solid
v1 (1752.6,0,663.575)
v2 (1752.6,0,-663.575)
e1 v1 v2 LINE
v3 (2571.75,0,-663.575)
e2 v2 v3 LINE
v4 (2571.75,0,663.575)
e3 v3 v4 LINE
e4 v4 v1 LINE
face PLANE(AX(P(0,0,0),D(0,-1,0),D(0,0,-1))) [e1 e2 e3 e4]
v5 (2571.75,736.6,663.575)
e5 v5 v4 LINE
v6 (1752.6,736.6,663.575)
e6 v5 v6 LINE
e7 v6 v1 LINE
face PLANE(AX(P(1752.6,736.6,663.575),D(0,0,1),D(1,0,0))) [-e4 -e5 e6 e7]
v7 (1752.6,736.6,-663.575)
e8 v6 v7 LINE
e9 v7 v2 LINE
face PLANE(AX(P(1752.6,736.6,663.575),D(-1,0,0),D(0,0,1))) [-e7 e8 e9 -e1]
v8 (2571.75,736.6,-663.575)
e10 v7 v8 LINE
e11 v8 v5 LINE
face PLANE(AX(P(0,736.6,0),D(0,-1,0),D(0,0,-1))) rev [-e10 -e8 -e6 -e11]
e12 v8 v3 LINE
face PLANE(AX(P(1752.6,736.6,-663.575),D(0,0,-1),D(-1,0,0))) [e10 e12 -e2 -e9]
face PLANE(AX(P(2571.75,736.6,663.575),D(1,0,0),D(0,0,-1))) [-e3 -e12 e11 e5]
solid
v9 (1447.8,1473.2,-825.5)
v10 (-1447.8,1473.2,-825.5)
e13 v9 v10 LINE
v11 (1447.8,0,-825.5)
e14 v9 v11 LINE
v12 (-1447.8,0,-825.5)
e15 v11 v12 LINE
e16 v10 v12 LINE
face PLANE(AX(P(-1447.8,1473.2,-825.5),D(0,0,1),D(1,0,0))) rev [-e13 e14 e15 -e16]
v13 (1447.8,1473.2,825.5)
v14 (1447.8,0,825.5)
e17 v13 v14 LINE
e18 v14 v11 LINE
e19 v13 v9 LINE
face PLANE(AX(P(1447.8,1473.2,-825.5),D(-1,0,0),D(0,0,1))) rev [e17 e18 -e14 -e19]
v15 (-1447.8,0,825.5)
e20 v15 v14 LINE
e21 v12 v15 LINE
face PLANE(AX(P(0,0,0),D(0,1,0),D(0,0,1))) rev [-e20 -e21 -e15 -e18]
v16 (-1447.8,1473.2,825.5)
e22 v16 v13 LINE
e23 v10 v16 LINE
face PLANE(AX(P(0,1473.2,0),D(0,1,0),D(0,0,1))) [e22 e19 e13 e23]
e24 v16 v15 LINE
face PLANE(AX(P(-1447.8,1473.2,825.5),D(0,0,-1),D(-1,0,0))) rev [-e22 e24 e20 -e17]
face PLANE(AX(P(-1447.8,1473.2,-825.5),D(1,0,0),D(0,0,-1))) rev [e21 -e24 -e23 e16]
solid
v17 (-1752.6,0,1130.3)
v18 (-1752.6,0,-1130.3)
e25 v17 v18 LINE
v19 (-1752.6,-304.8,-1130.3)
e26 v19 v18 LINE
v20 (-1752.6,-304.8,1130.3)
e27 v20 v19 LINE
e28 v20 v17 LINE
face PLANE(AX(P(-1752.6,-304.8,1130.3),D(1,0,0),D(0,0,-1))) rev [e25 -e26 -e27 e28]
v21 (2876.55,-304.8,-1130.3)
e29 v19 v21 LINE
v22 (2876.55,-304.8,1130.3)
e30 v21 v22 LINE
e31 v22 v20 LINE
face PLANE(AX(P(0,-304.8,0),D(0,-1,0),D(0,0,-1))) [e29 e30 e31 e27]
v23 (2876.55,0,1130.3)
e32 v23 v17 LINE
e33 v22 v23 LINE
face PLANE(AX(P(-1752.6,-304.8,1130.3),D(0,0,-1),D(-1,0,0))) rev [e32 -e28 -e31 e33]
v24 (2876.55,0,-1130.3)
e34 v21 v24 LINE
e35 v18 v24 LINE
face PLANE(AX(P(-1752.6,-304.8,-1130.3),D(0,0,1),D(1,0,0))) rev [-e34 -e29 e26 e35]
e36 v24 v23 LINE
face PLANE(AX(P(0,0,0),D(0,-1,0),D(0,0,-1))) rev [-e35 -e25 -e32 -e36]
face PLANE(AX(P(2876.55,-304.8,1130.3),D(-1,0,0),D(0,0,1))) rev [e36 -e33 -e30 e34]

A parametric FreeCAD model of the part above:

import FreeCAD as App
import Part
import Sketcher
Q = App.Units.Quantity

doc = App.newDocument("Part")
params = doc.addObject("Spreadsheet::Sheet", "Params")
for row, (alias, value) in enumerate([
    ("sketch1_width", "114 in"),
    ("sketch1_height", "65 in"),
    ("pad1_length", "58 in"),
    ("sketch2_width", "32.25 in"),
    ("sketch2_height", "52.25 in"),
    ("pad2_length", "29 in"),
    ("sketch3_height", "89 in"),
    ("sketch3_width", "182.25 in"),
    ("pad3_length", "12 in"),
], start=1):
    params.set(f"A{row}", alias)
    params.set(f"B{row}", "=" + value)
    params.setAlias(f"B{row}", alias)

body = doc.addObject("PartDesign::Body", "Body")

# Sketch on XZ plane
sketch1 = body.newObject("Sketcher::SketchObject", "Sketch")
sketch1.AttachmentSupport = (doc.getObject("XZ_Plane"), [""])
sketch1.MapMode = "FlatFace"
sketch1.addGeometry([
    Part.LineSegment(App.Vector(-1448, -826, 0), App.Vector(-1448, 826, 0)),
    Part.LineSegment(App.Vector(-1448, 826, 0), App.Vector(1448, 826, 0)),
    Part.LineSegment(App.Vector(1448, 826, 0), App.Vector(1448, -826, 0)),
    Part.LineSegment(App.Vector(1448, -826, 0), App.Vector(-1448, -826, 0)),
], False)
sketch1.addConstraint([
    Sketcher.Constraint("Coincident", 0, 2, 1, 1),
    Sketcher.Constraint("Coincident", 1, 2, 2, 1),
    Sketcher.Constraint("Coincident", 2, 2, 3, 1),
    Sketcher.Constraint("Coincident", 3, 2, 0, 1),
    Sketcher.Constraint("Vertical", 0),
    Sketcher.Constraint("Horizontal", 1),
    Sketcher.Constraint("Vertical", 2),
    Sketcher.Constraint("Horizontal", 3),
    Sketcher.Constraint("Symmetric", 0, 2, 2, 2, -1, 1),
    Sketcher.Constraint("DistanceX", 1, 1, 1, 2, Q("114 in")),
    Sketcher.Constraint("DistanceY", 0, 1, 0, 2, Q("65 in")),
])
sketch1.setExpression("Constraints[9]", "Params.sketch1_width")
sketch1.setExpression("Constraints[10]", "Params.sketch1_height")
pad1 = body.newObject("PartDesign::Pad", "Pad")
pad1.Profile = sketch1
pad1.setExpression("Length", "Params.pad1_length")
pad1.Reversed = True
body2 = doc.addObject("PartDesign::Body", "Body001")

# Sketch on XZ plane
sketch2 = body2.newObject("Sketcher::SketchObject", "Sketch001")
sketch2.AttachmentSupport = (doc.getObject("XZ_Plane001"), [""])
sketch2.MapMode = "FlatFace"
sketch2.addGeometry([
    Part.LineSegment(App.Vector(1753, 664, 0), App.Vector(1753, -664, 0)),
    Part.LineSegment(App.Vector(1753, -664, 0), App.Vector(2572, -664, 0)),
    Part.LineSegment(App.Vector(2572, -664, 0), App.Vector(2572, 664, 0)),
    Part.LineSegment(App.Vector(2572, 664, 0), App.Vector(1753, 664, 0)),
], False)
sketch2.addConstraint([
    Sketcher.Constraint("Coincident", 0, 2, 1, 1),
    Sketcher.Constraint("Coincident", 1, 2, 2, 1),
    Sketcher.Constraint("Coincident", 2, 2, 3, 1),
    Sketcher.Constraint("Coincident", 3, 2, 0, 1),
    Sketcher.Constraint("Vertical", 0),
    Sketcher.Constraint("Horizontal", 1),
    Sketcher.Constraint("Vertical", 2),
    Sketcher.Constraint("Horizontal", 3),
    Sketcher.Constraint("DistanceX", -1, 1, 0, 2, Q("69 in")),
    Sketcher.Constraint("DistanceX", 1, 1, 1, 2, Q("32.25 in")),
    Sketcher.Constraint("DistanceY", 0, 2, 0, 1, Q("52.25 in")),
    Sketcher.Constraint("DistanceY", 0, 2, -1, 1, Q("26.125 in")),
])
sketch2.setExpression("Constraints[9]", "Params.sketch2_width")
sketch2.setExpression("Constraints[10]", "Params.sketch2_height")
pad2 = body2.newObject("PartDesign::Pad", "Pad001")
pad2.Profile = sketch2
pad2.setExpression("Length", "Params.pad2_length")
pad2.Reversed = True
body3 = doc.addObject("PartDesign::Body", "Body002")

# Sketch on XZ plane
sketch3 = body3.newObject("Sketcher::SketchObject", "Sketch002")
sketch3.AttachmentSupport = (doc.getObject("XZ_Plane002"), [""])
sketch3.MapMode = "FlatFace"
sketch3.addGeometry([
    Part.LineSegment(App.Vector(-1753, 1130, 0), App.Vector(-1753, -1130, 0)),
    Part.LineSegment(App.Vector(-1753, -1130, 0), App.Vector(2877, -1130, 0)),
    Part.LineSegment(App.Vector(2877, -1130, 0), App.Vector(2877, 1130, 0)),
    Part.LineSegment(App.Vector(2877, 1130, 0), App.Vector(-1753, 1130, 0)),
], False)
sketch3.addConstraint([
    Sketcher.Constraint("Coincident", 0, 2, 1, 1),
    Sketcher.Constraint("Coincident", 1, 2, 2, 1),
    Sketcher.Constraint("Coincident", 2, 2, 3, 1),
    Sketcher.Constraint("Coincident", 3, 2, 0, 1),
    Sketcher.Constraint("Vertical", 0),
    Sketcher.Constraint("Horizontal", 1),
    Sketcher.Constraint("Vertical", 2),
    Sketcher.Constraint("Horizontal", 3),
    Sketcher.Constraint("DistanceY", 0, 2, 0, 1, Q("89 in")),
    Sketcher.Constraint("DistanceX", 0, 2, -1, 1, Q("69 in")),
    Sketcher.Constraint("DistanceX", 1, 1, 1, 2, Q("182.25 in")),
    Sketcher.Constraint("DistanceY", 0, 2, -1, 1, Q("44.5 in")),
])
sketch3.setExpression("Constraints[8]", "Params.sketch3_height")
sketch3.setExpression("Constraints[10]", "Params.sketch3_width")
pad3 = body3.newObject("PartDesign::Pad", "Pad002")
pad3.Profile = sketch3
pad3.setExpression("Length", "Params.pad3_length")

doc.recompute()
